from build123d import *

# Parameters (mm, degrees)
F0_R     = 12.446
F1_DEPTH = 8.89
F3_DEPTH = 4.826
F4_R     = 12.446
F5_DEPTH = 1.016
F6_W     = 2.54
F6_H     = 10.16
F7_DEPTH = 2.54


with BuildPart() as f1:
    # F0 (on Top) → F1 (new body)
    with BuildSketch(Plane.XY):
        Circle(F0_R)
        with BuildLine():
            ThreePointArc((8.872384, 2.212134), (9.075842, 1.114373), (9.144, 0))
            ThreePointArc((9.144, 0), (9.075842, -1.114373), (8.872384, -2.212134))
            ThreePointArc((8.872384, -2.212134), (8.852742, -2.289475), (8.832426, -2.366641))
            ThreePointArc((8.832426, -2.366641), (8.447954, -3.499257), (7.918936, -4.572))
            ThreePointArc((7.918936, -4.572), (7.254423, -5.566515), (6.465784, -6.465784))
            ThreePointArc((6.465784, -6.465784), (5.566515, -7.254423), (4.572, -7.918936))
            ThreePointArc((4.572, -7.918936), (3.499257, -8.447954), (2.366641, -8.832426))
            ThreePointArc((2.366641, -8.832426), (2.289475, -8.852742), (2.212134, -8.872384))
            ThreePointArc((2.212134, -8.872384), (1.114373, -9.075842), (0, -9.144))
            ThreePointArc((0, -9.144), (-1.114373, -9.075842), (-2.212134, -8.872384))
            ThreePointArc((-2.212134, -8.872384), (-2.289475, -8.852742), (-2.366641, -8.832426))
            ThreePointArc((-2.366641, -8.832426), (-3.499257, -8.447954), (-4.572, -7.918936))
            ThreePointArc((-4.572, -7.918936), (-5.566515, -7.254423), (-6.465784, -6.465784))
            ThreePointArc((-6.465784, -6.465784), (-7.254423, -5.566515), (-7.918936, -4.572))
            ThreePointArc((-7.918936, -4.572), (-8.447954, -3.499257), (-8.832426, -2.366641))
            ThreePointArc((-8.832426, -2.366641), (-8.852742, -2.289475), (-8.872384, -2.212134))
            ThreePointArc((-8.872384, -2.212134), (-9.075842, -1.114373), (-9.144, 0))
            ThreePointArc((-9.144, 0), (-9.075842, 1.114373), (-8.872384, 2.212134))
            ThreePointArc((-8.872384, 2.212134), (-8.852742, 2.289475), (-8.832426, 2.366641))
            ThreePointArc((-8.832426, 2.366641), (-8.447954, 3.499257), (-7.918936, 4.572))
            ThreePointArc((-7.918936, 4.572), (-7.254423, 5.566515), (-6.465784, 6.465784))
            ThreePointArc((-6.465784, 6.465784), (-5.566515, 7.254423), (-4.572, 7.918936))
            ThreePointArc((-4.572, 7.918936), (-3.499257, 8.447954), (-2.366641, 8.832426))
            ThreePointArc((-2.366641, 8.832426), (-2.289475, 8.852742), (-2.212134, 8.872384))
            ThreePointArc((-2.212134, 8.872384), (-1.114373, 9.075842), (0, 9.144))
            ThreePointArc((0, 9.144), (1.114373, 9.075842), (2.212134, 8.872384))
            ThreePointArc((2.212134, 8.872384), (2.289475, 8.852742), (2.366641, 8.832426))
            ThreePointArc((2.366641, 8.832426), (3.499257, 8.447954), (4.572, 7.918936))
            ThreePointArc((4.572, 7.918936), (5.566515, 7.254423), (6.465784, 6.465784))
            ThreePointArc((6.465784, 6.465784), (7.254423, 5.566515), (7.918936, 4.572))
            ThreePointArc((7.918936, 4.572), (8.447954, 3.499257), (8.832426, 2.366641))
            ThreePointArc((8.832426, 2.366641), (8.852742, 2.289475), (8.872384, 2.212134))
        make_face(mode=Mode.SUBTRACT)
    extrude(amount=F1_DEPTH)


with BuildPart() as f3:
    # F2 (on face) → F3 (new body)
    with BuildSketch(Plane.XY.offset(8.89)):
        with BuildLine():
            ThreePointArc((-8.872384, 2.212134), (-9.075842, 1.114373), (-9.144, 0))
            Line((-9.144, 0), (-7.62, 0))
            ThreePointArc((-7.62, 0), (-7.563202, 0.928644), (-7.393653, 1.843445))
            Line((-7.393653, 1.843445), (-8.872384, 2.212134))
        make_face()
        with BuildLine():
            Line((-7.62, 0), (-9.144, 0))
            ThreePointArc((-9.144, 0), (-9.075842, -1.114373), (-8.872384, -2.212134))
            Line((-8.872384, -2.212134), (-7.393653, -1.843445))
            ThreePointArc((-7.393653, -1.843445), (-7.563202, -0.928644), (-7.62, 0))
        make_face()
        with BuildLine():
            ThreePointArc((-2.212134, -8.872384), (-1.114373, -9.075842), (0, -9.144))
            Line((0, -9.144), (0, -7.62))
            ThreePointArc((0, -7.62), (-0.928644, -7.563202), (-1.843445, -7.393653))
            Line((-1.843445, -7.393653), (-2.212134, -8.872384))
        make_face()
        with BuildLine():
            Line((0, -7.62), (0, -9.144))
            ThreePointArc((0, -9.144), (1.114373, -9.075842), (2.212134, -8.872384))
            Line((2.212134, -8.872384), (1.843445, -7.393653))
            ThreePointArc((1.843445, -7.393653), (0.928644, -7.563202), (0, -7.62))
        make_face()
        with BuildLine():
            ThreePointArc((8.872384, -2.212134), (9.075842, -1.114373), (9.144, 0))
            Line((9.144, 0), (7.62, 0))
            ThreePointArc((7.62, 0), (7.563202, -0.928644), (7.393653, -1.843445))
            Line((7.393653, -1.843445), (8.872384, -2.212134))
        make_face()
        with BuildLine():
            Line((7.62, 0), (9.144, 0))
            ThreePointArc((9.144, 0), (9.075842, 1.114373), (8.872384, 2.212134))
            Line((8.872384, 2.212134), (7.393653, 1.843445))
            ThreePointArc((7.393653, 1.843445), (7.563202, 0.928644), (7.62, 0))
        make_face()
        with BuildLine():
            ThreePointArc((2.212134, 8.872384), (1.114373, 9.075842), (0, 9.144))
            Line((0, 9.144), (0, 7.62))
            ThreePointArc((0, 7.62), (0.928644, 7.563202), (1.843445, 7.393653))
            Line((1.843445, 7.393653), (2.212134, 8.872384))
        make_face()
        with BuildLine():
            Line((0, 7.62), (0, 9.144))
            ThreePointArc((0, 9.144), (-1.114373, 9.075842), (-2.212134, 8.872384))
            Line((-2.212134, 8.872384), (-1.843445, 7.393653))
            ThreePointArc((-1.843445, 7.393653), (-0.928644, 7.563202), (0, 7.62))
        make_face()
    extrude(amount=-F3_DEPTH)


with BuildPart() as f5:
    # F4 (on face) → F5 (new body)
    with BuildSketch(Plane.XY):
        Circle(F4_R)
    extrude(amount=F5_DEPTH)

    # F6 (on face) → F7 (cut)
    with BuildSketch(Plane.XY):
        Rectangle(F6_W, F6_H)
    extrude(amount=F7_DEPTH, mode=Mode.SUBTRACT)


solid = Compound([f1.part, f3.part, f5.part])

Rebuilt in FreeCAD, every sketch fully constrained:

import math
import FreeCAD as App
import Part
import Sketcher
from FreeCAD import Vector
Q = App.Units.Quantity


def add_polygon(sketch, points):
    """Adds a closed chain of lines whose ends are joined by coincident constraints."""
    first, n = sketch.GeometryCount, len(points)
    for a, b in zip(points, points[1:] + points[:1]):
        sketch.addGeometry(Part.LineSegment(App.Vector(*a, 0), App.Vector(*b, 0)), False)
    for i in range(n):
        sketch.addConstraint(Sketcher.Constraint("Coincident", first + i, 2, first + (i + 1) % n, 1))

doc = App.newDocument("Part")
body = doc.addObject("PartDesign::Body", "Body")

# Sketch on XY plane
sketch1 = doc.addObject("Sketcher::SketchObject", "Sketch")
body.addObject(sketch1)
sketch1.AttachmentSupport = (doc.XY_Plane, [""])
sketch1.MapMode = "FlatFace"
sketch1.addGeometry(Part.Circle(Vector(0, 0, 0), Vector(0, 0, 1), 12.446), False)
sketch1.addGeometry(Part.ArcOfCircle(Part.Circle(Vector(0.000026, 0.00002, 0), Vector(0, 0, 1), 9.143969), math.radians(13.999921), math.radians(14.999921)), False)
sketch1.addGeometry(Part.ArcOfCircle(Part.Circle(Vector(-0.000001, 0, 0), Vector(0, 0, 1), 9.144001), math.radians(0.000003), math.radians(14.000002)), False)
sketch1.addGeometry(Part.ArcOfCircle(Part.Circle(Vector(-0.000001, 0, 0), Vector(0, 0, 1), 9.144001), math.radians(-14.000002), math.radians(-0.000003)), False)
sketch1.addGeometry(Part.ArcOfCircle(Part.Circle(Vector(0.000026, -0.00002, 0), Vector(0, 0, 1), 9.143969), math.radians(-14.999921), math.radians(-13.999921)), False)
sketch1.addGeometry(Part.ArcOfCircle(Part.Circle(Vector(-0.000051, 0.000023, 0), Vector(0, 0, 1), 9.144055), math.radians(-29.999965), math.radians(-15.000052)), False)
sketch1.addGeometry(Part.ArcOfCircle(Part.Circle(Vector(0.000071, -0.000053, 0), Vector(0, 0, 1), 9.143912), math.radians(-45.00008), math.radians(-29.999936)), False)
sketch1.addGeometry(Part.ArcOfCircle(Part.Circle(Vector(0.000053, -0.000071, 0), Vector(0, 0, 1), 9.143912), math.radians(-60.000064), math.radians(-44.99992)), False)
sketch1.addGeometry(Part.ArcOfCircle(Part.Circle(Vector(-0.000023, 0.000051, 0), Vector(0, 0, 1), 9.144055), math.radians(-74.999948), math.radians(-60.000035)), False)
sketch1.addGeometry(Part.ArcOfCircle(Part.Circle(Vector(0.00002, -0.000026, 0), Vector(0, 0, 1), 9.143969), math.radians(-76.000079), math.radians(-75.000079)), False)
sketch1.addGeometry(Part.ArcOfCircle(Part.Circle(Vector(0, 0.000001, 0), Vector(0, 0, 1), 9.144001), math.radians(-89.999997), math.radians(-75.999998)), False)
sketch1.addGeometry(Part.ArcOfCircle(Part.Circle(Vector(0, 0.000001, 0), Vector(0, 0, 1), 9.144001), math.radians(-104.000002), math.radians(-90.000003)), False)
sketch1.addGeometry(Part.ArcOfCircle(Part.Circle(Vector(-0.00002, -0.000026, 0), Vector(0, 0, 1), 9.143969), math.radians(-104.999921), math.radians(-103.999921)), False)
sketch1.addGeometry(Part.ArcOfCircle(Part.Circle(Vector(0.000023, 0.000051, 0), Vector(0, 0, 1), 9.144055), math.radians(-119.999965), math.radians(-105.000052)), False)
sketch1.addGeometry(Part.ArcOfCircle(Part.Circle(Vector(-0.000053, -0.000071, 0), Vector(0, 0, 1), 9.143912), math.radians(-135.00008), math.radians(-119.999936)), False)
sketch1.addGeometry(Part.ArcOfCircle(Part.Circle(Vector(-0.000071, -0.000053, 0), Vector(0, 0, 1), 9.143912), math.radians(-150.000064), math.radians(-134.99992)), False)
sketch1.addGeometry(Part.ArcOfCircle(Part.Circle(Vector(0.000051, 0.000023, 0), Vector(0, 0, 1), 9.144055), math.radians(-164.999948), math.radians(-150.000035)), False)
sketch1.addGeometry(Part.ArcOfCircle(Part.Circle(Vector(-0.000026, -0.00002, 0), Vector(0, 0, 1), 9.143969), math.radians(-166.000079), math.radians(-165.000079)), False)
sketch1.addGeometry(Part.ArcOfCircle(Part.Circle(Vector(0.000001, 0, 0), Vector(0, 0, 1), 9.144001), math.radians(-179.999997), math.radians(-165.999998)), False)
sketch1.addGeometry(Part.ArcOfCircle(Part.Circle(Vector(0.000001, 0, 0), Vector(0, 0, 1), 9.144001), math.radians(165.999998), math.radians(179.999997)), False)
sketch1.addGeometry(Part.ArcOfCircle(Part.Circle(Vector(-0.000026, 0.00002, 0), Vector(0, 0, 1), 9.143969), math.radians(165.000079), math.radians(166.000079)), False)
sketch1.addGeometry(Part.ArcOfCircle(Part.Circle(Vector(0.000051, -0.000023, 0), Vector(0, 0, 1), 9.144055), math.radians(150.000035), math.radians(164.999948)), False)
sketch1.addGeometry(Part.ArcOfCircle(Part.Circle(Vector(-0.000071, 0.000053, 0), Vector(0, 0, 1), 9.143912), math.radians(134.99992), math.radians(150.000064)), False)
sketch1.addGeometry(Part.ArcOfCircle(Part.Circle(Vector(-0.000053, 0.000071, 0), Vector(0, 0, 1), 9.143912), math.radians(119.999936), math.radians(135.00008)), False)
sketch1.addGeometry(Part.ArcOfCircle(Part.Circle(Vector(0.000023, -0.000051, 0), Vector(0, 0, 1), 9.144055), math.radians(105.000052), math.radians(119.999965)), False)
sketch1.addGeometry(Part.ArcOfCircle(Part.Circle(Vector(-0.00002, 0.000026, 0), Vector(0, 0, 1), 9.143969), math.radians(103.999921), math.radians(104.999921)), False)
sketch1.addGeometry(Part.ArcOfCircle(Part.Circle(Vector(0, -0.000001, 0), Vector(0, 0, 1), 9.144001), math.radians(90.000003), math.radians(104.000002)), False)
sketch1.addGeometry(Part.ArcOfCircle(Part.Circle(Vector(0, -0.000001, 0), Vector(0, 0, 1), 9.144001), math.radians(75.999998), math.radians(89.999997)), False)
sketch1.addGeometry(Part.ArcOfCircle(Part.Circle(Vector(0.00002, 0.000026, 0), Vector(0, 0, 1), 9.143969), math.radians(75.000079), math.radians(76.000079)), False)
sketch1.addGeometry(Part.ArcOfCircle(Part.Circle(Vector(-0.000023, -0.000051, 0), Vector(0, 0, 1), 9.144055), math.radians(60.000035), math.radians(74.999948)), False)
sketch1.addGeometry(Part.ArcOfCircle(Part.Circle(Vector(0.000053, 0.000071, 0), Vector(0, 0, 1), 9.143912), math.radians(44.99992), math.radians(60.000064)), False)
sketch1.addGeometry(Part.ArcOfCircle(Part.Circle(Vector(0.000071, 0.000053, 0), Vector(0, 0, 1), 9.143912), math.radians(29.999936), math.radians(45.00008)), False)
sketch1.addGeometry(Part.ArcOfCircle(Part.Circle(Vector(-0.000051, -0.000023, 0), Vector(0, 0, 1), 9.144055), math.radians(15.000052), math.radians(29.999965)), False)
sketch1.addConstraint(Sketcher.Constraint("Coincident", 1, 1, 2, 2))
sketch1.addConstraint(Sketcher.Constraint("Coincident", 2, 1, 3, 2))
sketch1.addConstraint(Sketcher.Constraint("Coincident", 3, 1, 4, 2))
sketch1.addConstraint(Sketcher.Constraint("Coincident", 4, 1, 5, 2))
sketch1.addConstraint(Sketcher.Constraint("Coincident", 5, 1, 6, 2))
sketch1.addConstraint(Sketcher.Constraint("Coincident", 6, 1, 7, 2))
sketch1.addConstraint(Sketcher.Constraint("Coincident", 7, 1, 8, 2))
sketch1.addConstraint(Sketcher.Constraint("Coincident", 8, 1, 9, 2))
sketch1.addConstraint(Sketcher.Constraint("Coincident", 9, 1, 10, 2))
sketch1.addConstraint(Sketcher.Constraint("Coincident", 10, 1, 11, 2))
sketch1.addConstraint(Sketcher.Constraint("Coincident", 11, 1, 12, 2))
sketch1.addConstraint(Sketcher.Constraint("Coincident", 12, 1, 13, 2))
sketch1.addConstraint(Sketcher.Constraint("Coincident", 13, 1, 14, 2))
sketch1.addConstraint(Sketcher.Constraint("Coincident", 14, 1, 15, 2))
sketch1.addConstraint(Sketcher.Constraint("Coincident", 15, 1, 16, 2))
sketch1.addConstraint(Sketcher.Constraint("Coincident", 16, 1, 17, 2))
sketch1.addConstraint(Sketcher.Constraint("Coincident", 17, 1, 18, 2))
sketch1.addConstraint(Sketcher.Constraint("Coincident", 18, 1, 19, 2))
sketch1.addConstraint(Sketcher.Constraint("Coincident", 19, 1, 20, 2))
sketch1.addConstraint(Sketcher.Constraint("Coincident", 20, 1, 21, 2))
sketch1.addConstraint(Sketcher.Constraint("Coincident", 21, 1, 22, 2))
sketch1.addConstraint(Sketcher.Constraint("Coincident", 22, 1, 23, 2))
sketch1.addConstraint(Sketcher.Constraint("Coincident", 23, 1, 24, 2))
sketch1.addConstraint(Sketcher.Constraint("Coincident", 24, 1, 25, 2))
sketch1.addConstraint(Sketcher.Constraint("Coincident", 25, 1, 26, 2))
sketch1.addConstraint(Sketcher.Constraint("Coincident", 26, 1, 27, 2))
sketch1.addConstraint(Sketcher.Constraint("Coincident", 27, 1, 28, 2))
sketch1.addConstraint(Sketcher.Constraint("Coincident", 28, 1, 29, 2))
sketch1.addConstraint(Sketcher.Constraint("Coincident", 29, 1, 30, 2))
sketch1.addConstraint(Sketcher.Constraint("Coincident", 30, 1, 31, 2))
sketch1.addConstraint(Sketcher.Constraint("Coincident", 31, 1, 32, 2))
sketch1.addConstraint(Sketcher.Constraint("Coincident", 32, 1, 1, 2))
sketch1.addConstraint(Sketcher.Constraint("Coincident", 0, 3, -1, 1))
sketch1.addConstraint(Sketcher.Constraint("Coincident", 2, 3, -1, 1))
sketch1.addConstraint(Sketcher.Constraint("Coincident", 3, 3, -1, 1))
sketch1.addConstraint(Sketcher.Constraint("Coincident", 10, 3, -1, 1))
sketch1.addConstraint(Sketcher.Constraint("Coincident", 11, 3, -1, 1))
sketch1.addConstraint(Sketcher.Constraint("Coincident", 18, 3, -1, 1))
sketch1.addConstraint(Sketcher.Constraint("Coincident", 19, 3, -1, 1))
sketch1.addConstraint(Sketcher.Constraint("Coincident", 26, 3, -1, 1))
sketch1.addConstraint(Sketcher.Constraint("Coincident", 27, 3, -1, 1))
sketch1.addConstraint(Sketcher.Constraint("Coincident", 9, 3, 4, 3))
sketch1.addConstraint(Sketcher.Constraint("Coincident", 17, 3, 12, 3))
sketch1.addConstraint(Sketcher.Constraint("Coincident", 25, 3, 20, 3))
sketch1.addConstraint(Sketcher.Constraint("Coincident", 28, 3, 1, 3))
sketch1.addConstraint(Sketcher.Constraint("PointOnObject", 2, 1, -1))
sketch1.addConstraint(Sketcher.Constraint("PointOnObject", 10, 1, -2))
sketch1.addConstraint(Sketcher.Constraint("PointOnObject", 18, 1, -1))
sketch1.addConstraint(Sketcher.Constraint("PointOnObject", 26, 1, -2))
sketch1.addConstraint(Sketcher.Constraint("Diameter", 0, Q("0.98 in")))
sketch1.addConstraint(Sketcher.Constraint("Radius", 2, Q("0.36 in")))
sketch1.addConstraint(Sketcher.Constraint("Radius", 10, Q("0.36 in")))
sketch1.addConstraint(Sketcher.Constraint("Radius", 18, Q("0.36 in")))
sketch1.addConstraint(Sketcher.Constraint("Radius", 26, Q("0.36 in")))
sketch1.addConstraint(Sketcher.Constraint("DistanceY", 5, 1, -1, 1, Q("0.18 in")))
sketch1.addConstraint(Sketcher.Constraint("DistanceX", -1, 1, 7, 1, Q("0.18 in")))
sketch1.addConstraint(Sketcher.Constraint("DistanceX", 13, 1, -1, 1, Q("0.18 in")))
sketch1.addConstraint(Sketcher.Constraint("DistanceY", 15, 1, -1, 1, Q("0.18 in")))
sketch1.addConstraint(Sketcher.Constraint("DistanceY", -1, 1, 21, 1, Q("0.18 in")))
sketch1.addConstraint(Sketcher.Constraint("DistanceX", 23, 1, -1, 1, Q("0.18 in")))
sketch1.addConstraint(Sketcher.Constraint("DistanceX", -1, 1, 29, 1, Q("0.18 in")))
sketch1.addConstraint(Sketcher.Constraint("DistanceY", -1, 1, 31, 1, Q("0.18 in")))
sketch1.addConstraint(Sketcher.Constraint("Radius", 1, 9.143969))
sketch1.addConstraint(Sketcher.Constraint("Radius", 4, 9.143969))
sketch1.addConstraint(Sketcher.Constraint("Radius", 6, 9.143912))
sketch1.addConstraint(Sketcher.Constraint("Radius", 7, 9.143912))
sketch1.addConstraint(Sketcher.Constraint("Radius", 9, 9.143969))
sketch1.addConstraint(Sketcher.Constraint("Radius", 12, 9.143969))
sketch1.addConstraint(Sketcher.Constraint("Radius", 14, 9.143912))
sketch1.addConstraint(Sketcher.Constraint("Radius", 15, 9.143912))
sketch1.addConstraint(Sketcher.Constraint("Radius", 17, 9.143969))
sketch1.addConstraint(Sketcher.Constraint("Radius", 20, 9.143969))
sketch1.addConstraint(Sketcher.Constraint("Radius", 22, 9.143912))
sketch1.addConstraint(Sketcher.Constraint("Radius", 23, 9.143912))
sketch1.addConstraint(Sketcher.Constraint("Radius", 25, 9.143969))
sketch1.addConstraint(Sketcher.Constraint("Radius", 28, 9.143969))
sketch1.addConstraint(Sketcher.Constraint("Radius", 30, 9.143912))
sketch1.addConstraint(Sketcher.Constraint("Radius", 31, 9.143912))
sketch1.addConstraint(Sketcher.Constraint("Radius", 5, 9.144055))
sketch1.addConstraint(Sketcher.Constraint("Radius", 8, 9.144055))
sketch1.addConstraint(Sketcher.Constraint("Radius", 13, 9.144055))
sketch1.addConstraint(Sketcher.Constraint("Radius", 16, 9.144055))
sketch1.addConstraint(Sketcher.Constraint("Radius", 21, 9.144055))
sketch1.addConstraint(Sketcher.Constraint("Radius", 24, 9.144055))
sketch1.addConstraint(Sketcher.Constraint("Radius", 29, 9.144055))
sketch1.addConstraint(Sketcher.Constraint("Radius", 32, 9.144055))
sketch1.addConstraint(Sketcher.Constraint("DistanceY", 4, 1, -1, 1, 2.366641))
sketch1.addConstraint(Sketcher.Constraint("DistanceX", -1, 1, 8, 1, 2.366641))
sketch1.addConstraint(Sketcher.Constraint("DistanceX", 12, 1, -1, 1, 2.366641))
sketch1.addConstraint(Sketcher.Constraint("DistanceY", 16, 1, -1, 1, 2.366641))
sketch1.addConstraint(Sketcher.Constraint("DistanceY", -1, 1, 20, 1, 2.366641))
sketch1.addConstraint(Sketcher.Constraint("DistanceX", 24, 1, -1, 1, 2.366641))
sketch1.addConstraint(Sketcher.Constraint("DistanceX", -1, 1, 28, 1, 2.366641))
sketch1.addConstraint(Sketcher.Constraint("DistanceY", -1, 1, 32, 1, 2.366641))
sketch1.addConstraint(Sketcher.Constraint("DistanceX", -1, 1, 1, 1, 8.872384))
sketch1.addConstraint(Sketcher.Constraint("DistanceX", -1, 1, 3, 1, 8.872384))
sketch1.addConstraint(Sketcher.Constraint("DistanceX", -1, 1, 5, 1, 7.918936))
sketch1.addConstraint(Sketcher.Constraint("DistanceX", -1, 1, 6, 1, 6.465784))
sketch1.addConstraint(Sketcher.Constraint("DistanceY", 6, 1, -1, 1, 6.465784))
sketch1.addConstraint(Sketcher.Constraint("DistanceY", 7, 1, -1, 1, 7.918936))
sketch1.addConstraint(Sketcher.Constraint("DistanceX", -1, 1, 9, 1, 2.212134))
sketch1.addConstraint(Sketcher.Constraint("DistanceX", 11, 1, -1, 1, 2.212134))
sketch1.addConstraint(Sketcher.Constraint("DistanceY", 13, 1, -1, 1, 7.918936))
sketch1.addConstraint(Sketcher.Constraint("DistanceX", 14, 1, -1, 1, 6.465784))
sketch1.addConstraint(Sketcher.Constraint("DistanceY", 14, 1, -1, 1, 6.465784))
sketch1.addConstraint(Sketcher.Constraint("DistanceX", 15, 1, -1, 1, 7.918936))
sketch1.addConstraint(Sketcher.Constraint("DistanceX", 17, 1, -1, 1, 8.872384))
sketch1.addConstraint(Sketcher.Constraint("DistanceX", 19, 1, -1, 1, 8.872384))
sketch1.addConstraint(Sketcher.Constraint("DistanceX", 21, 1, -1, 1, 7.918936))
sketch1.addConstraint(Sketcher.Constraint("DistanceX", 22, 1, -1, 1, 6.465784))
sketch1.addConstraint(Sketcher.Constraint("DistanceY", -1, 1, 22, 1, 6.465784))
sketch1.addConstraint(Sketcher.Constraint("DistanceY", -1, 1, 23, 1, 7.918936))
sketch1.addConstraint(Sketcher.Constraint("DistanceX", 25, 1, -1, 1, 2.212134))
sketch1.addConstraint(Sketcher.Constraint("DistanceX", -1, 1, 27, 1, 2.212134))
sketch1.addConstraint(Sketcher.Constraint("DistanceY", -1, 1, 29, 1, 7.918936))
sketch1.addConstraint(Sketcher.Constraint("DistanceX", -1, 1, 30, 1, 6.465784))
sketch1.addConstraint(Sketcher.Constraint("DistanceY", -1, 1, 30, 1, 6.465784))
sketch1.addConstraint(Sketcher.Constraint("DistanceX", -1, 1, 31, 1, 7.918936))
pad1 = doc.addObject("PartDesign::Pad", "Pad")
body.addObject(pad1)
pad1.Profile = sketch1
pad1.Length = Q("0.35 in")
body2 = doc.addObject("PartDesign::Body", "Body001")
body2.AllowCompound = True

# Sketch on XY plane
sketch2 = doc.addObject("Sketcher::SketchObject", "Sketch001")
body2.addObject(sketch2)
sketch2.AttachmentSupport = (doc.getObject("XY_Plane001"), [""])
sketch2.MapMode = "FlatFace"
sketch2.AttachmentOffset = App.Placement(Vector(0, 0, 0.35 * 25.4), App.Rotation())
sketch2.addGeometry(Part.ArcOfCircle(Part.Circle(Vector(0.000001, 0, 0), Vector(0, 0, 1), 9.144001), math.radians(165.999998), math.radians(179.999997)), False)
sketch2.addGeometry(Part.ArcOfCircle(Part.Circle(Vector(0.000001, 0, 0), Vector(0, 0, 1), 9.144001), math.radians(-179.999997), math.radians(-165.999998)), False)
sketch2.addGeometry(Part.LineSegment(Vector(-8.872384, -2.212134, 0), Vector(-7.393653, -1.843445, 0)), False)
sketch2.addGeometry(Part.ArcOfCircle(Part.Circle(Vector(-0.000062, -0.000006, 0), Vector(0, 0, 1), 7.619938), math.radians(179.999955), math.radians(194.000071)), False)
sketch2.addGeometry(Part.ArcOfCircle(Part.Circle(Vector(-0.000062, 0.000006, 0), Vector(0, 0, 1), 7.619938), math.radians(165.999929), math.radians(180.000045)), False)
sketch2.addGeometry(Part.LineSegment(Vector(-7.393653, 1.843445, 0), Vector(-8.872384, 2.212134, 0)), False)
sketch2.addGeometry(Part.ArcOfCircle(Part.Circle(Vector(0, 0.000001, 0), Vector(0, 0, 1), 9.144001), math.radians(-104.000002), math.radians(-90.000003)), False)
sketch2.addGeometry(Part.ArcOfCircle(Part.Circle(Vector(0, 0.000001, 0), Vector(0, 0, 1), 9.144001), math.radians(-89.999997), math.radians(-75.999998)), False)
sketch2.addGeometry(Part.LineSegment(Vector(2.212134, -8.872384, 0), Vector(1.843445, -7.393653, 0)), False)
sketch2.addGeometry(Part.ArcOfCircle(Part.Circle(Vector(0.000006, -0.000062, 0), Vector(0, 0, 1), 7.619938), math.radians(-90.000045), math.radians(-75.999929)), False)
sketch2.addGeometry(Part.ArcOfCircle(Part.Circle(Vector(-0.000006, -0.000062, 0), Vector(0, 0, 1), 7.619938), math.radians(-104.000071), math.radians(-89.999955)), False)
sketch2.addGeometry(Part.LineSegment(Vector(-1.843445, -7.393653, 0), Vector(-2.212134, -8.872384, 0)), False)
sketch2.addGeometry(Part.ArcOfCircle(Part.Circle(Vector(-0.000001, 0, 0), Vector(0, 0, 1), 9.144001), math.radians(-14.000002), math.radians(-0.000003)), False)
sketch2.addGeometry(Part.ArcOfCircle(Part.Circle(Vector(-0.000001, 0, 0), Vector(0, 0, 1), 9.144001), math.radians(0.000003), math.radians(14.000002)), False)
sketch2.addGeometry(Part.LineSegment(Vector(8.872384, 2.212134, 0), Vector(7.393653, 1.843445, 0)), False)
sketch2.addGeometry(Part.ArcOfCircle(Part.Circle(Vector(0.000062, 0.000006, 0), Vector(0, 0, 1), 7.619938), math.radians(-0.000045), math.radians(14.000071)), False)
sketch2.addGeometry(Part.ArcOfCircle(Part.Circle(Vector(0.000062, -0.000006, 0), Vector(0, 0, 1), 7.619938), math.radians(-14.000071), math.radians(0.000045)), False)
sketch2.addGeometry(Part.LineSegment(Vector(7.393653, -1.843445, 0), Vector(8.872384, -2.212134, 0)), False)
sketch2.addGeometry(Part.ArcOfCircle(Part.Circle(Vector(0, -0.000001, 0), Vector(0, 0, 1), 9.144001), math.radians(75.999998), math.radians(89.999997)), False)
sketch2.addGeometry(Part.ArcOfCircle(Part.Circle(Vector(0, -0.000001, 0), Vector(0, 0, 1), 9.144001), math.radians(90.000003), math.radians(104.000002)), False)
sketch2.addGeometry(Part.LineSegment(Vector(-2.212134, 8.872384, 0), Vector(-1.843445, 7.393653, 0)), False)
sketch2.addGeometry(Part.ArcOfCircle(Part.Circle(Vector(-0.000006, 0.000062, 0), Vector(0, 0, 1), 7.619938), math.radians(89.999955), math.radians(104.000071)), False)
sketch2.addGeometry(Part.ArcOfCircle(Part.Circle(Vector(0.000006, 0.000062, 0), Vector(0, 0, 1), 7.619938), math.radians(75.999929), math.radians(90.000045)), False)
sketch2.addGeometry(Part.LineSegment(Vector(1.843445, 7.393653, 0), Vector(2.212134, 8.872384, 0)), False)
sketch2.addConstraint(Sketcher.Constraint("Coincident", 0, 2, 1, 1))
sketch2.addConstraint(Sketcher.Constraint("Coincident", 1, 2, 2, 1))
sketch2.addConstraint(Sketcher.Constraint("Coincident", 2, 2, 3, 2))
sketch2.addConstraint(Sketcher.Constraint("Coincident", 3, 1, 4, 2))
sketch2.addConstraint(Sketcher.Constraint("Coincident", 4, 1, 5, 1))
sketch2.addConstraint(Sketcher.Constraint("Coincident", 5, 2, 0, 1))
sketch2.addConstraint(Sketcher.Constraint("Coincident", 6, 2, 7, 1))
sketch2.addConstraint(Sketcher.Constraint("Coincident", 7, 2, 8, 1))
sketch2.addConstraint(Sketcher.Constraint("Coincident", 8, 2, 9, 2))
sketch2.addConstraint(Sketcher.Constraint("Coincident", 9, 1, 10, 2))
sketch2.addConstraint(Sketcher.Constraint("Coincident", 10, 1, 11, 1))
sketch2.addConstraint(Sketcher.Constraint("Coincident", 11, 2, 6, 1))
sketch2.addConstraint(Sketcher.Constraint("Coincident", 12, 2, 13, 1))
sketch2.addConstraint(Sketcher.Constraint("Coincident", 13, 2, 14, 1))
sketch2.addConstraint(Sketcher.Constraint("Coincident", 14, 2, 15, 2))
sketch2.addConstraint(Sketcher.Constraint("Coincident", 15, 1, 16, 2))
sketch2.addConstraint(Sketcher.Constraint("Coincident", 16, 1, 17, 1))
sketch2.addConstraint(Sketcher.Constraint("Coincident", 17, 2, 12, 1))
sketch2.addConstraint(Sketcher.Constraint("Coincident", 18, 2, 19, 1))
sketch2.addConstraint(Sketcher.Constraint("Coincident", 19, 2, 20, 1))
sketch2.addConstraint(Sketcher.Constraint("Coincident", 20, 2, 21, 2))
sketch2.addConstraint(Sketcher.Constraint("Coincident", 21, 1, 22, 2))
sketch2.addConstraint(Sketcher.Constraint("Coincident", 22, 1, 23, 1))
sketch2.addConstraint(Sketcher.Constraint("Coincident", 23, 2, 18, 1))
sketch2.addConstraint(Sketcher.Constraint("Coincident", 0, 3, -1, 1))
sketch2.addConstraint(Sketcher.Constraint("Coincident", 1, 3, -1, 1))
sketch2.addConstraint(Sketcher.Constraint("Coincident", 6, 3, -1, 1))
sketch2.addConstraint(Sketcher.Constraint("Coincident", 7, 3, -1, 1))
sketch2.addConstraint(Sketcher.Constraint("Coincident", 12, 3, -1, 1))
sketch2.addConstraint(Sketcher.Constraint("Coincident", 13, 3, -1, 1))
sketch2.addConstraint(Sketcher.Constraint("Coincident", 18, 3, -1, 1))
sketch2.addConstraint(Sketcher.Constraint("Coincident", 19, 3, -1, 1))
sketch2.addConstraint(Sketcher.Constraint("PointOnObject", 0, 2, -1))
sketch2.addConstraint(Sketcher.Constraint("PointOnObject", 3, 1, -1))
sketch2.addConstraint(Sketcher.Constraint("PointOnObject", 6, 2, -2))
sketch2.addConstraint(Sketcher.Constraint("PointOnObject", 9, 1, -2))
sketch2.addConstraint(Sketcher.Constraint("PointOnObject", 12, 2, -1))
sketch2.addConstraint(Sketcher.Constraint("PointOnObject", 15, 1, -1))
sketch2.addConstraint(Sketcher.Constraint("PointOnObject", 18, 2, -2))
sketch2.addConstraint(Sketcher.Constraint("PointOnObject", 21, 1, -2))
sketch2.addConstraint(Sketcher.Constraint("Radius", 0, Q("0.36 in")))
sketch2.addConstraint(Sketcher.Constraint("Radius", 6, Q("0.36 in")))
sketch2.addConstraint(Sketcher.Constraint("Radius", 12, Q("0.36 in")))
sketch2.addConstraint(Sketcher.Constraint("Radius", 18, Q("0.36 in")))
sketch2.addConstraint(Sketcher.Constraint("DistanceX", 3, 1, -1, 1, Q("0.3 in")))
sketch2.addConstraint(Sketcher.Constraint("DistanceY", 9, 1, -1, 1, Q("0.3 in")))
sketch2.addConstraint(Sketcher.Constraint("DistanceX", -1, 1, 15, 1, Q("0.3 in")))
sketch2.addConstraint(Sketcher.Constraint("DistanceY", -1, 1, 21, 1, Q("0.3 in")))
sketch2.addConstraint(Sketcher.Constraint("Distance", 2, Q("0.06 in")))
sketch2.addConstraint(Sketcher.Constraint("Distance", 5, Q("0.06 in")))
sketch2.addConstraint(Sketcher.Constraint("Distance", 8, Q("0.06 in")))
sketch2.addConstraint(Sketcher.Constraint("Distance", 11, Q("0.06 in")))
sketch2.addConstraint(Sketcher.Constraint("Distance", 14, Q("0.06 in")))
sketch2.addConstraint(Sketcher.Constraint("Distance", 17, Q("0.06 in")))
sketch2.addConstraint(Sketcher.Constraint("Distance", 20, Q("0.06 in")))
sketch2.addConstraint(Sketcher.Constraint("Distance", 23, Q("0.06 in")))
sketch2.addConstraint(Sketcher.Constraint("Radius", 3, 7.619938))
sketch2.addConstraint(Sketcher.Constraint("Radius", 4, 7.619938))
sketch2.addConstraint(Sketcher.Constraint("Radius", 9, 7.619938))
sketch2.addConstraint(Sketcher.Constraint("Radius", 10, 7.619938))
sketch2.addConstraint(Sketcher.Constraint("Radius", 15, 7.619938))
sketch2.addConstraint(Sketcher.Constraint("Radius", 16, 7.619938))
sketch2.addConstraint(Sketcher.Constraint("Radius", 21, 7.619938))
sketch2.addConstraint(Sketcher.Constraint("Radius", 22, 7.619938))
sketch2.addConstraint(Sketcher.Constraint("DistanceX", 1, 2, 3, 3, 8.872322))
sketch2.addConstraint(Sketcher.Constraint("DistanceX", 1, 2, 2, 2, 1.478731))
sketch2.addConstraint(Sketcher.Constraint("DistanceY", 2, 2, 4, 1, 3.68689))
sketch2.addConstraint(Sketcher.Constraint("DistanceX", 5, 2, 4, 1, 1.478731))
sketch2.addConstraint(Sketcher.Constraint("DistanceY", 7, 2, 9, 3, 8.872322))
sketch2.addConstraint(Sketcher.Constraint("DistanceX", 8, 2, 7, 2, 0.368689))
sketch2.addConstraint(Sketcher.Constraint("DistanceX", 10, 1, 8, 2, 3.68689))
sketch2.addConstraint(Sketcher.Constraint("DistanceX", 11, 2, 10, 1, 0.368689))
sketch2.addConstraint(Sketcher.Constraint("DistanceX", 15, 3, 13, 2, 8.872322))
sketch2.addConstraint(Sketcher.Constraint("DistanceX", 14, 2, 13, 2, 1.478731))
sketch2.addConstraint(Sketcher.Constraint("DistanceY", 16, 1, 14, 2, 3.68689))
sketch2.addConstraint(Sketcher.Constraint("DistanceX", 16, 1, 17, 2, 1.478731))
sketch2.addConstraint(Sketcher.Constraint("DistanceX", 4, 1, 19, 2, 5.181519))
sketch2.addConstraint(Sketcher.Constraint("DistanceX", 19, 2, 20, 2, 0.368689))
sketch2.addConstraint(Sketcher.Constraint("DistanceX", 20, 2, 22, 1, 3.68689))
sketch2.addConstraint(Sketcher.Constraint("DistanceX", 22, 1, 23, 2, 0.368689))
pad2 = doc.addObject("PartDesign::Pad", "Pad001")
body2.addObject(pad2)
pad2.Profile = sketch2
pad2.Length = Q("0.19 in")
pad2.Reversed = True
body3 = doc.addObject("PartDesign::Body", "Body002")

# Sketch on XY plane
sketch3 = doc.addObject("Sketcher::SketchObject", "Sketch002")
body3.addObject(sketch3)
sketch3.AttachmentSupport = (doc.getObject("XY_Plane002"), [""])
sketch3.MapMode = "FlatFace"
sketch3.addGeometry(Part.Circle(Vector(0, 0, 0), Vector(0, 0, 1), 12.446), False)
sketch3.addConstraint(Sketcher.Constraint("Coincident", 0, 3, -1, 1))
sketch3.addConstraint(Sketcher.Constraint("Diameter", 0, Q("0.98 in")))
pad3 = doc.addObject("PartDesign::Pad", "Pad002")
body3.addObject(pad3)
pad3.Profile = sketch3
pad3.Length = Q("0.04 in")

# Sketch on XY plane
sketch4 = doc.addObject("Sketcher::SketchObject", "Sketch003")
body3.addObject(sketch4)
sketch4.AttachmentSupport = (doc.getObject("XY_Plane002"), [""])
sketch4.MapMode = "FlatFace"
add_polygon(sketch4, [(-1.27, 5.08), (-1.27, -5.08), (1.27, -5.08), (1.27, 5.08)])  # lines 0-3
sketch4.addConstraint(Sketcher.Constraint("Vertical", 0))
sketch4.addConstraint(Sketcher.Constraint("Horizontal", 1))
sketch4.addConstraint(Sketcher.Constraint("Vertical", 2))
sketch4.addConstraint(Sketcher.Constraint("Horizontal", 3))
sketch4.addConstraint(Sketcher.Constraint("Symmetric", 0, 2, 2, 2, -1, 1))
sketch4.addConstraint(Sketcher.Constraint("DistanceX", 1, 1, 1, 2, Q("0.1 in")))
sketch4.addConstraint(Sketcher.Constraint("DistanceY", 0, 2, 0, 1, Q("0.4 in")))
pocket1 = doc.addObject("PartDesign::Pocket", "Pocket")
body3.addObject(pocket1)
pocket1.Profile = sketch4
pocket1.Length = Q("0.1 in")
pocket1.Reversed = True

doc.recompute()
